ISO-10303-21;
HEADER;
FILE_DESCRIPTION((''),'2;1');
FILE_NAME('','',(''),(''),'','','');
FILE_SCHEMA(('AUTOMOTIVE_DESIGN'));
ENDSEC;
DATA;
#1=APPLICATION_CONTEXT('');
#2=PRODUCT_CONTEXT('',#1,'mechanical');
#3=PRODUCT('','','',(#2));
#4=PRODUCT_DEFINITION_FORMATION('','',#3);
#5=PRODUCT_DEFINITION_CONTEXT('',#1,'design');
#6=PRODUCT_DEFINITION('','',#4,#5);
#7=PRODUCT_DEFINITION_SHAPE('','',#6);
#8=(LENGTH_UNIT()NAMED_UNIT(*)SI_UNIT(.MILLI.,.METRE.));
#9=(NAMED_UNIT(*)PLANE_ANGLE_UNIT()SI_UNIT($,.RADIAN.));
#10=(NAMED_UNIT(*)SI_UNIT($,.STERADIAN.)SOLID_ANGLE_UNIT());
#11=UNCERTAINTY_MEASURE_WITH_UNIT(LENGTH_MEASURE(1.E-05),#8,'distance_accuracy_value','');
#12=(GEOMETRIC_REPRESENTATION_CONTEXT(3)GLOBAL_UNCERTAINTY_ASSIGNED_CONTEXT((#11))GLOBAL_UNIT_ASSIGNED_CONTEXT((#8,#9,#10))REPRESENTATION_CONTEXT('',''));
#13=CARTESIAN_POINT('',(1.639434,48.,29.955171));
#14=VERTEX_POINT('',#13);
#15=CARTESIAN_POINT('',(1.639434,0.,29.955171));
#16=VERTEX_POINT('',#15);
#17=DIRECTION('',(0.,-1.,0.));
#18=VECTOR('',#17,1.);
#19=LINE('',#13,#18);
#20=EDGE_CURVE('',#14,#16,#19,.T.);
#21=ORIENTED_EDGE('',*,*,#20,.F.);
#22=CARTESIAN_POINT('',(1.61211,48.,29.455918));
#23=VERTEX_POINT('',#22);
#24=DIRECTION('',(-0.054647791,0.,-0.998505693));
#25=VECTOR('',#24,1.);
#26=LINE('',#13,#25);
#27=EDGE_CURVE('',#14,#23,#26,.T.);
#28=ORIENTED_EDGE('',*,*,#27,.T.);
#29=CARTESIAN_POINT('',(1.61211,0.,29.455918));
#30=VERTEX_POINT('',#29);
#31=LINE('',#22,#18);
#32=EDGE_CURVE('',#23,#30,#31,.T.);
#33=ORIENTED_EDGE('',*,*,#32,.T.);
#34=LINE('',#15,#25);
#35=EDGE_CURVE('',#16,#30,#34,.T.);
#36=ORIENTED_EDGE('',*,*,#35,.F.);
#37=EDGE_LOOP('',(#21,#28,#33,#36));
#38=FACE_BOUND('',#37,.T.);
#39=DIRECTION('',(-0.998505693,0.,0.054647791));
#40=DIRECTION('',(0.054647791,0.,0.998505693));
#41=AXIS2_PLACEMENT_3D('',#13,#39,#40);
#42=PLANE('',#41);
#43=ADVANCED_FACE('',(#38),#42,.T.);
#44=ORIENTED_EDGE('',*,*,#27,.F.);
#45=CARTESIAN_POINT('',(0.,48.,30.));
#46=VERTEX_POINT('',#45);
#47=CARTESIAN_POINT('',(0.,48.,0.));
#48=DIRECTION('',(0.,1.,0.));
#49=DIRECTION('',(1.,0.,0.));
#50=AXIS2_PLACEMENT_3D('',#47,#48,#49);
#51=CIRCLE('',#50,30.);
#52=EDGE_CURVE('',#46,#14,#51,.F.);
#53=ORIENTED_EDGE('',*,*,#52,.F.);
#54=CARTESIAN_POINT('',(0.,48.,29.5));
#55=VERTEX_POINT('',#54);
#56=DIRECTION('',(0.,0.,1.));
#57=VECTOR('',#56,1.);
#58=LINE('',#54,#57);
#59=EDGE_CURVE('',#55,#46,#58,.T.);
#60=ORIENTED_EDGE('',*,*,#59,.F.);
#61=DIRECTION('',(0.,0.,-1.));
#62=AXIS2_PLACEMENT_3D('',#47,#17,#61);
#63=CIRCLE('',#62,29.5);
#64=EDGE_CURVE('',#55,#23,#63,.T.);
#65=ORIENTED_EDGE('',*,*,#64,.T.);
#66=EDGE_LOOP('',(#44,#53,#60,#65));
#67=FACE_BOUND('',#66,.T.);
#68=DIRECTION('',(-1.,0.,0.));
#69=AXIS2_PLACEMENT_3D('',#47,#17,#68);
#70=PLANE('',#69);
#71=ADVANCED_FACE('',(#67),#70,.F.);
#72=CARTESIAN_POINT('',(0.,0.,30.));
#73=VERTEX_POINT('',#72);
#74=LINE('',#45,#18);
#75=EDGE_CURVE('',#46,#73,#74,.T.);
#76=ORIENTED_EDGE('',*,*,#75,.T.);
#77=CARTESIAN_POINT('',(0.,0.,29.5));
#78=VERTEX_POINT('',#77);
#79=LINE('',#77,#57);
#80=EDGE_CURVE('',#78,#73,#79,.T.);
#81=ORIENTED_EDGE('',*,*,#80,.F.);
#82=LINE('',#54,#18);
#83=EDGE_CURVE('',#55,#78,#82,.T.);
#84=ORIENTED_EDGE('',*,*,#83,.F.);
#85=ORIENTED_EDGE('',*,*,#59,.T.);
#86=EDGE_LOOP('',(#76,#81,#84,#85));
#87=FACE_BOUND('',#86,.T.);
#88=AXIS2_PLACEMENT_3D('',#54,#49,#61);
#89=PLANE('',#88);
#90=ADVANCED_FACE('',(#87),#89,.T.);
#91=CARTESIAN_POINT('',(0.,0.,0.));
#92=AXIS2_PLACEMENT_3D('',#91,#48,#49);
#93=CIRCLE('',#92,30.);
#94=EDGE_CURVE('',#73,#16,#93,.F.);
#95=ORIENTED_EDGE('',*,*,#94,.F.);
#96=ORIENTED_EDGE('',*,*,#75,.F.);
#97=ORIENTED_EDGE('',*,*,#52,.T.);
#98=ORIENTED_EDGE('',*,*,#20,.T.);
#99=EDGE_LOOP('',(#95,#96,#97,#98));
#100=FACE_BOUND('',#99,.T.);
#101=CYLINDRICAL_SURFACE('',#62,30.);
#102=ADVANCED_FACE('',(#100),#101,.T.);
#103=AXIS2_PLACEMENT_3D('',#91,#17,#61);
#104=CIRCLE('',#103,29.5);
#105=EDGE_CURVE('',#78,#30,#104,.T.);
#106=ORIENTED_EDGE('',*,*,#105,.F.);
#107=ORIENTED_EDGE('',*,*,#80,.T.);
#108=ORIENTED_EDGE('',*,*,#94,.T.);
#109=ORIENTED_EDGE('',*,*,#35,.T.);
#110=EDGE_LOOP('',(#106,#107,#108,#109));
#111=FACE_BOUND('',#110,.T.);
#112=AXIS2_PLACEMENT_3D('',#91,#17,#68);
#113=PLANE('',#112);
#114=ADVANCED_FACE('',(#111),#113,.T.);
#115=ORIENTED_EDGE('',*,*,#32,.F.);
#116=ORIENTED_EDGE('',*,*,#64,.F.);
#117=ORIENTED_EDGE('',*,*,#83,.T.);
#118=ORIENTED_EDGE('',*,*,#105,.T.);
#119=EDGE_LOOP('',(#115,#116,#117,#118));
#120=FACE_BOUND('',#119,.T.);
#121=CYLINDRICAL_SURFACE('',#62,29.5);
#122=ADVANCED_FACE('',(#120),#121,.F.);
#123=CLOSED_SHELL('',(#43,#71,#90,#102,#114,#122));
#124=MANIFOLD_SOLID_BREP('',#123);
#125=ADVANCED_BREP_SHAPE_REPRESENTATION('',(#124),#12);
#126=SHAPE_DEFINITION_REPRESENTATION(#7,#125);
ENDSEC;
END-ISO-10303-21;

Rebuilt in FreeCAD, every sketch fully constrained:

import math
import FreeCAD as App
import Part
import Sketcher

doc = App.newDocument("Part")
body = doc.addObject("PartDesign::Body", "Body")

sketch1 = body.newObject("Sketcher::SketchObject", "Sketch")
sketch1.AttachmentSupport = (doc.getObject("XZ_Plane"), [""])
sketch1.MapMode = "FlatFace"
sketch1.addGeometry([
    Part.ArcOfCircle(Part.Circle(App.Vector(0, 0, 0), App.Vector(0, 0, 1), 29.5), math.radians(90), math.radians(447)),
    Part.LineSegment(App.Vector(1.6, 29.5, 0), App.Vector(1.6, 30, 0)),
    Part.ArcOfCircle(Part.Circle(App.Vector(0, 0, 0), App.Vector(0, 0, 1), 30), math.radians(90), math.radians(447)),
    Part.LineSegment(App.Vector(0, 30, 0), App.Vector(0, 29.5, 0)),
], False)
sketch1.addConstraint([
    Sketcher.Constraint("Coincident", 0, 2, 1, 1),
    Sketcher.Constraint("Coincident", 1, 2, 2, 2),
    Sketcher.Constraint("Coincident", 2, 1, 3, 1),
    Sketcher.Constraint("Coincident", 3, 2, 0, 1),
    Sketcher.Constraint("Vertical", 3),
    Sketcher.Constraint("Coincident", 0, 3, -1, 1),
    Sketcher.Constraint("Coincident", 2, 3, -1, 1),
    Sketcher.Constraint("PointOnObject", 2, 1, -2),
    Sketcher.Constraint("Radius", 2, 30.0),
    Sketcher.Constraint("Radius", 0, 29.5),
    Sketcher.Constraint("DistanceX", -1, 1, 0, 2, 1.61211),
    Sketcher.Constraint("DistanceY", -1, 1, 1, 2, 29.955171),
])
pad1 = body.newObject("PartDesign::Pad", "Pad")
pad1.Profile = sketch1
pad1.Length = 48
pad1.Reversed = True

doc.recompute()
